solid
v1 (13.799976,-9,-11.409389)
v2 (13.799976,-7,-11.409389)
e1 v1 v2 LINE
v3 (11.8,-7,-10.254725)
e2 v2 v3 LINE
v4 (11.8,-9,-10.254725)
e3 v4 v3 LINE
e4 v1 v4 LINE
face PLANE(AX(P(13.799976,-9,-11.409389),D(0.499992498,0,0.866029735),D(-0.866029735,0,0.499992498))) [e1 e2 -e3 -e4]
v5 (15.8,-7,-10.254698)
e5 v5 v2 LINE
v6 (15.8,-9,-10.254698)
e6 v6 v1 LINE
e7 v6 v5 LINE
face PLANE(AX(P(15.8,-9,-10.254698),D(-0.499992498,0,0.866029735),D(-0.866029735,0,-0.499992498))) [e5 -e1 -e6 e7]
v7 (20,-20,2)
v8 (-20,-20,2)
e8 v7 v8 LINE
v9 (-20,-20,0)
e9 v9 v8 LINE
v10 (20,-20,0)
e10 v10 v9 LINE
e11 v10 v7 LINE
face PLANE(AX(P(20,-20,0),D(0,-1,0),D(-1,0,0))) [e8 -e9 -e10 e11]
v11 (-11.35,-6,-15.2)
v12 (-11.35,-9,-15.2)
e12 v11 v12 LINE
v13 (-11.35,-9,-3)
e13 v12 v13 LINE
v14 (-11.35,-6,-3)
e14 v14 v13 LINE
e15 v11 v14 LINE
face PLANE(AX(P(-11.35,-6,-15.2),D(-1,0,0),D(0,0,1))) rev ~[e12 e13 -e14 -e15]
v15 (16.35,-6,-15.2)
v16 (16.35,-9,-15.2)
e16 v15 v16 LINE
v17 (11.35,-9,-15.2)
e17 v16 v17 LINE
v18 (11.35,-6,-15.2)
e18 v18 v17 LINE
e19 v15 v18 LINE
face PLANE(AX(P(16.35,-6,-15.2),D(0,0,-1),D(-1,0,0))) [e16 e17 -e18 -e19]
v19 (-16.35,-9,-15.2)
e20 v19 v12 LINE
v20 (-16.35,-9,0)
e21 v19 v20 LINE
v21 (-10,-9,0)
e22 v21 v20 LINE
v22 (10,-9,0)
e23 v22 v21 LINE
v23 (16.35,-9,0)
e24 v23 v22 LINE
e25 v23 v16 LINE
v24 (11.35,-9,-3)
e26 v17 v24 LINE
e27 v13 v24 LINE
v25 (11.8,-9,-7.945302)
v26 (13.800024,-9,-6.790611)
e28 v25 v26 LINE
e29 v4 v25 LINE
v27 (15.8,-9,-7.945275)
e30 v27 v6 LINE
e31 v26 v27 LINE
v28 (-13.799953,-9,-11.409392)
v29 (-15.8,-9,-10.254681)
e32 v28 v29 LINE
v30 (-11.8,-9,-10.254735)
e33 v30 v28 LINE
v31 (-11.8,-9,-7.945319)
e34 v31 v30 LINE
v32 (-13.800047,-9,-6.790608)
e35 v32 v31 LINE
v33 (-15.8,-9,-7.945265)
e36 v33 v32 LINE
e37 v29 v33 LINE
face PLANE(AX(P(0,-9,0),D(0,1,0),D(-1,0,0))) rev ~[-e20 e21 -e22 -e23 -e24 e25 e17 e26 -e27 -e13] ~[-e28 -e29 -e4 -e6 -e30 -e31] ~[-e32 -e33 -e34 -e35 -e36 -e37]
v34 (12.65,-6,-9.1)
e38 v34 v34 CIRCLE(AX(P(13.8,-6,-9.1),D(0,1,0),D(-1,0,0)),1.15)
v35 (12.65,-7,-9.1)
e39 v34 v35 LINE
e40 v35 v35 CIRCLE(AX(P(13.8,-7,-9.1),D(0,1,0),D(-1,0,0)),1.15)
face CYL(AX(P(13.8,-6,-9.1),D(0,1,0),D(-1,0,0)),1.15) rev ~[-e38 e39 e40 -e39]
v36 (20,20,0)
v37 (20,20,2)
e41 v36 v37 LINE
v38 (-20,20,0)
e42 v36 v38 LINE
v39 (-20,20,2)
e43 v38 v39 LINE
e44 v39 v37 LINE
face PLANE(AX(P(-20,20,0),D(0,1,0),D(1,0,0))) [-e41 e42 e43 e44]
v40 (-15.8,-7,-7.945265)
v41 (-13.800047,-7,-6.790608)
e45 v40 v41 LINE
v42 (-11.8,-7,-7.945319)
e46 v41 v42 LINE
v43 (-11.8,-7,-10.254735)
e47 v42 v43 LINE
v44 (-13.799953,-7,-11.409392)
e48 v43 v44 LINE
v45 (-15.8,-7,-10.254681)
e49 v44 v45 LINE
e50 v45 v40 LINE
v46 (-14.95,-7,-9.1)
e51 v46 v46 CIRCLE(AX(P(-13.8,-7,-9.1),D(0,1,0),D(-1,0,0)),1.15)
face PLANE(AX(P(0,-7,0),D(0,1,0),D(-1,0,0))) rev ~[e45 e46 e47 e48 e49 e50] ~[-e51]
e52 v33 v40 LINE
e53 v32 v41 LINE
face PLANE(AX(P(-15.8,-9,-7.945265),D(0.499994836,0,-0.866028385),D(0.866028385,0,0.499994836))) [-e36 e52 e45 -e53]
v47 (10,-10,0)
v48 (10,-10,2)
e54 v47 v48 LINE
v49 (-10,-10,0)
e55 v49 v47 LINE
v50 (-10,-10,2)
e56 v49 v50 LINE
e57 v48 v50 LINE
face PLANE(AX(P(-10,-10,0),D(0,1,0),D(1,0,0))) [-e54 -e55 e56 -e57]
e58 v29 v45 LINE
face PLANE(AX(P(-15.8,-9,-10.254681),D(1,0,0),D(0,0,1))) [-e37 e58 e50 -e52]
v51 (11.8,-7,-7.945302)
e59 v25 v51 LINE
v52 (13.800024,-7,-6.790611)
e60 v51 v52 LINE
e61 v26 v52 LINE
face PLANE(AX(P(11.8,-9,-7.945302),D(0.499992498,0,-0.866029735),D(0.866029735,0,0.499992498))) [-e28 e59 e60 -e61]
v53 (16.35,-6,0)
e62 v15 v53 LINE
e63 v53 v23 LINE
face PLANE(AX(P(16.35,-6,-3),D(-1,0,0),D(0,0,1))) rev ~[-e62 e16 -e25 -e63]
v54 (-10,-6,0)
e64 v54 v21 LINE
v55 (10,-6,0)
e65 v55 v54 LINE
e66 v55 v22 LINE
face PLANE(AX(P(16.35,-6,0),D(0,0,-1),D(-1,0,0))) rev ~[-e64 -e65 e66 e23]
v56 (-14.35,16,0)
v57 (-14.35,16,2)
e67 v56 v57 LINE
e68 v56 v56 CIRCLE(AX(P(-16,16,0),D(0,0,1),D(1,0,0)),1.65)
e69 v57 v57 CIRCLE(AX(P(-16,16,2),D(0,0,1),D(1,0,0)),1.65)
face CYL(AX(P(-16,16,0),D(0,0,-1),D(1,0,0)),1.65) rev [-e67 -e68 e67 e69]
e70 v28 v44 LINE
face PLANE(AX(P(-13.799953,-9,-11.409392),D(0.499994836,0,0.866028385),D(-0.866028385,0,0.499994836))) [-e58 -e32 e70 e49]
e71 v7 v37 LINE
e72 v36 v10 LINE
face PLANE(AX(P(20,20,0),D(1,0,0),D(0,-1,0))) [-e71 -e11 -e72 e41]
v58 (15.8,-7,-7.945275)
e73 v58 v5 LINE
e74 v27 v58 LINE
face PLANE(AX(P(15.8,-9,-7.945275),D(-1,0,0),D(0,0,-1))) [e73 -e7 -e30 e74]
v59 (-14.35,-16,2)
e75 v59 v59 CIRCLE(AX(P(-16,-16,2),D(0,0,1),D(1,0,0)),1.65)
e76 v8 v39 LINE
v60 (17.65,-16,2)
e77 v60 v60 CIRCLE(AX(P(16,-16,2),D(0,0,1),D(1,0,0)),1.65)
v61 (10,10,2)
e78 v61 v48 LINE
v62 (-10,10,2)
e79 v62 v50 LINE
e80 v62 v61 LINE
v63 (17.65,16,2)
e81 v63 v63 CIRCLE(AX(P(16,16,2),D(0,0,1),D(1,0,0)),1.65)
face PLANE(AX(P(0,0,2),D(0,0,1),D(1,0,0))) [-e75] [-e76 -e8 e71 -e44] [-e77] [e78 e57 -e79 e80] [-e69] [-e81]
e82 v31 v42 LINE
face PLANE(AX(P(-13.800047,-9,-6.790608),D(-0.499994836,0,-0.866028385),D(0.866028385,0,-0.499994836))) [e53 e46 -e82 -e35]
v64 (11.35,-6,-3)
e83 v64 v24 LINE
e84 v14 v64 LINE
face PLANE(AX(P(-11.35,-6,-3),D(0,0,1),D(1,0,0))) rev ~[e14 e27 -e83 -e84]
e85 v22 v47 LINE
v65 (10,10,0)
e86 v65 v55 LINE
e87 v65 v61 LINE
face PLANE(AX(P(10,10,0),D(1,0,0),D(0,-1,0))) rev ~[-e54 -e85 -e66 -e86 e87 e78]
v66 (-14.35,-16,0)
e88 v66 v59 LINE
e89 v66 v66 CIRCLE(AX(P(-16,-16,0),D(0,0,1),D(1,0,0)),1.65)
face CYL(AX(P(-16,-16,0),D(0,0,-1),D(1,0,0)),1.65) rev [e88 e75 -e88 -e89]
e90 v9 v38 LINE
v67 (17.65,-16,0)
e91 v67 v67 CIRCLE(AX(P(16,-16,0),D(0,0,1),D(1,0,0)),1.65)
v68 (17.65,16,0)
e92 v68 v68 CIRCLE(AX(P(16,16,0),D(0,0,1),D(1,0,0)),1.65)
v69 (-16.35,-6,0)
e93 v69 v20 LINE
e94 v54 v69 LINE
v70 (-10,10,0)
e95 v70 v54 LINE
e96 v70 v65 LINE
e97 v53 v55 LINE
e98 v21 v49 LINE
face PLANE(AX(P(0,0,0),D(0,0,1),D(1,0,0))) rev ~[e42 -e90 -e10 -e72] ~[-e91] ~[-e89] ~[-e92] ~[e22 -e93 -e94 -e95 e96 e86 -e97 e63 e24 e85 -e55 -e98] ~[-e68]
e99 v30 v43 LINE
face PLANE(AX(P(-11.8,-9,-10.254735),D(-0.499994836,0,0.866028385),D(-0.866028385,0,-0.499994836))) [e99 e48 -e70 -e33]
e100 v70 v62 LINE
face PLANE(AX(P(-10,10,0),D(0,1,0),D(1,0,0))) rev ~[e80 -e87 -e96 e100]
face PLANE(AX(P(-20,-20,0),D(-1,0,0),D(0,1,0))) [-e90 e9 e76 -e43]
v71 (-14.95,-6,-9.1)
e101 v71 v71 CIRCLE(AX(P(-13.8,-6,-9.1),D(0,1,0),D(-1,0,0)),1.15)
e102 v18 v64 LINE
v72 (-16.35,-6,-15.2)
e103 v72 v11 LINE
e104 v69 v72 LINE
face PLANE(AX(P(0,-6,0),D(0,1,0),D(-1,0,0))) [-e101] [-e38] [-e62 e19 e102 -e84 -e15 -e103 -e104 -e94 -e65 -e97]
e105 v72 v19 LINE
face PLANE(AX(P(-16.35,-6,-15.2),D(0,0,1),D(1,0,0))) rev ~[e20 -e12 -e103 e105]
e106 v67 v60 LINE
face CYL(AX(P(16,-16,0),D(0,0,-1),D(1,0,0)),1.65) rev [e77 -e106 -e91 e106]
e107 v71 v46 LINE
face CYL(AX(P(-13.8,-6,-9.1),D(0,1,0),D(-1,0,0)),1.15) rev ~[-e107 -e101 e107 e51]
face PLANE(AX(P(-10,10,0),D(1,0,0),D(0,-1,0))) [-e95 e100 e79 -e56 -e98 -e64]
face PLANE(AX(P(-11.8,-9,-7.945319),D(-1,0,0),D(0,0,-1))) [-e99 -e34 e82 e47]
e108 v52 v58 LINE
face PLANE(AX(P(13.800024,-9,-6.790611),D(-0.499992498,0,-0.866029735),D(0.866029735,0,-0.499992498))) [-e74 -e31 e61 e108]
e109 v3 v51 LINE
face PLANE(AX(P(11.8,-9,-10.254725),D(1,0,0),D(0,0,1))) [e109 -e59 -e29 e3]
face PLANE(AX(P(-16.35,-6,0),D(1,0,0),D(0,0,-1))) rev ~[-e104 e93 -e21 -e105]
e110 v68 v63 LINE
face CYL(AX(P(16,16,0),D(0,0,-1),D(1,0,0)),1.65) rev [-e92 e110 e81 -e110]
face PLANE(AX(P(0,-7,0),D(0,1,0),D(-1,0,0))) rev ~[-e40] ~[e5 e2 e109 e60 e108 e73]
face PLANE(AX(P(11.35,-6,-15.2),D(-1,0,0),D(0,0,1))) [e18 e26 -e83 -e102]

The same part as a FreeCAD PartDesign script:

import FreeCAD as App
import Part
import Sketcher
from FreeCAD import Vector
Q = App.Units.Quantity


def add_polygon(sketch, points):
    """Adds a closed chain of lines whose ends are joined by coincident constraints."""
    first, n = sketch.GeometryCount, len(points)
    for a, b in zip(points, points[1:] + points[:1]):
        sketch.addGeometry(Part.LineSegment(App.Vector(*a, 0), App.Vector(*b, 0)), False)
    for i in range(n):
        sketch.addConstraint(Sketcher.Constraint("Coincident", first + i, 2, first + (i + 1) % n, 1))

doc = App.newDocument("Part")
body = doc.addObject("PartDesign::Body", "Body")

sketch1 = body.newObject("Sketcher::SketchObject", "Sketch")
sketch1.AttachmentSupport = (doc.getObject("XY_Plane"), [""])
sketch1.MapMode = "FlatFace"
add_polygon(sketch1, [(-20, 20), (-20, -20), (20, -20), (20, 20)])
add_polygon(sketch1, [(-10, -10), (-10, 10), (10, 10), (10, -10)])
sketch1.addGeometry(Part.Circle(Vector(-16, -16, 0), Vector(0, 0, 1), 1.65), False)
sketch1.addGeometry(Part.Circle(Vector(16, -16, 0), Vector(0, 0, 1), 1.65), False)
sketch1.addGeometry(Part.Circle(Vector(-16, 16, 0), Vector(0, 0, 1), 1.65), False)
sketch1.addGeometry(Part.Circle(Vector(16, 16, 0), Vector(0, 0, 1), 1.65), False)
sketch1.addConstraint([
    Sketcher.Constraint("Vertical", 0),
    Sketcher.Constraint("Horizontal", 1),
    Sketcher.Constraint("Vertical", 2),
    Sketcher.Constraint("Horizontal", 3),
    Sketcher.Constraint("Vertical", 4),
    Sketcher.Constraint("Horizontal", 5),
    Sketcher.Constraint("Vertical", 6),
    Sketcher.Constraint("Horizontal", 7),
    Sketcher.Constraint("Equal", 8, 9),
    Sketcher.Constraint("Equal", 9, 10),
    Sketcher.Constraint("Equal", 10, 11),
    Sketcher.Constraint("Symmetric", 9, 3, 10, 3, -1, 1),
    Sketcher.Constraint("Symmetric", 8, 3, 11, 3, -1, 1),
    Sketcher.Constraint("Symmetric", 0, 2, 2, 2, -1, 1),
    Sketcher.Constraint("Symmetric", 4, 2, 6, 2, -1, 1),
    Sketcher.Constraint("Symmetric", 8, 3, 9, 3, -2),
    Sketcher.Constraint("Equal", 3, 0),
    Sketcher.Constraint("Equal", 7, 4),
    Sketcher.Constraint("Diameter", 8, Q("3.3 mm")),
    Sketcher.Constraint("DistanceX", 1, 1, 1, 2, Q("40 mm")),
    Sketcher.Constraint("DistanceX", 8, 3, -1, 1, Q("16 mm")),
    Sketcher.Constraint("DistanceY", 8, 3, -1, 1, Q("16 mm")),
    Sketcher.Constraint("DistanceX", 4, 2, -1, 1, Q("10 mm")),
])
pad1 = body.newObject("PartDesign::Pad", "Pad")
pad1.Profile = sketch1
pad1.Length = 2

sketch2 = body.newObject("Sketcher::SketchObject", "Sketch001")
sketch2.AttachmentSupport = (doc.getObject("XZ_Plane"), [""])
sketch2.MapMode = "FlatFace"
sketch2.AttachmentOffset = App.Placement(Vector(0, 0, 6), App.Rotation())
add_polygon(sketch2, [(-16.35, 0), (16.35, 0), (16.35, -15.2), (11.35, -15.2), (11.35, -3), (-11.35, -3), (-11.35, -15.2), (-16.35, -15.2)])
sketch2.addGeometry(Part.Circle(Vector(-13.8, -9.1, 0), Vector(0, 0, 1), 1.15), False)
sketch2.addGeometry(Part.Circle(Vector(13.8, -9.1, 0), Vector(0, 0, 1), 1.15), False)
sketch2.addConstraint([
    Sketcher.Constraint("Horizontal", 0),
    Sketcher.Constraint("Vertical", 1),
    Sketcher.Constraint("Horizontal", 2),
    Sketcher.Constraint("Vertical", 3),
    Sketcher.Constraint("Horizontal", 4),
    Sketcher.Constraint("Vertical", 5),
    Sketcher.Constraint("Horizontal", 6),
    Sketcher.Constraint("Vertical", 7),
    Sketcher.Constraint("Equal", 8, 9),
    Sketcher.Constraint("Symmetric", 0, 2, 7, 2, -1, 1),
    Sketcher.Constraint("Symmetric", 8, 3, 9, 3, -2),
    Sketcher.Constraint("Symmetric", 2, 2, 5, 2, -2),
    Sketcher.Constraint("Diameter", 8, Q("2.3 mm")),
    Sketcher.Constraint("DistanceX", 2, 2, 2, 1, Q("5 mm")),
    Sketcher.Constraint("DistanceX", 4, 2, 4, 1, Q("22.7 mm")),
    Sketcher.Constraint("DistanceY", 3, 1, 3, 2, Q("12.2 mm")),
    Sketcher.Constraint("DistanceY", 3, 2, -1, 1, Q("3 mm")),
    Sketcher.Constraint("DistanceX", 8, 3, -1, 1, Q("13.8 mm")),
    Sketcher.Constraint("DistanceY", 8, 3, -1, 1, Q("9.1 mm")),
])
pad2 = body.newObject("PartDesign::Pad", "Pad001")
pad2.Profile = sketch2
pad2.Length = 3

sketch3 = body.newObject("Sketcher::SketchObject", "Sketch002")
sketch3.AttachmentSupport = (doc.getObject("XZ_Plane"), [""])
sketch3.MapMode = "FlatFace"
sketch3.AttachmentOffset = App.Placement(Vector(0, 0, 9), App.Rotation())
add_polygon(sketch3, [(13.800024, -6.790611), (15.8, -7.945275), (15.8, -10.254698), (13.799976, -11.409389), (11.8, -10.254725), (11.8, -7.945302)])
sketch3.addGeometry(Part.Circle(Vector(13.8, -9.1, 0), Vector(0, 0, 1), 1.15), False)
add_polygon(sketch3, [(-13.799953, -11.409392), (-15.8, -10.254681), (-15.8, -7.945265), (-13.800047, -6.790608), (-11.8, -7.945319), (-11.8, -10.254735)])
sketch3.addGeometry(Part.Circle(Vector(-13.8, -9.1, 0), Vector(0, 0, 1), 1.15), False)
sketch3.addConstraint([
    Sketcher.Constraint("Vertical", 1),
    Sketcher.Constraint("Vertical", 4),
    Sketcher.Constraint("Vertical", 8),
    Sketcher.Constraint("Vertical", 11),
    Sketcher.Constraint("Equal", 6, 13),
    Sketcher.Constraint("Symmetric", 6, 3, 13, 3, -2),
    Sketcher.Constraint("Symmetric", 1, 2, 7, 2, -2),
    Sketcher.Constraint("Symmetric", 5, 2, 9, 2, -2),
    Sketcher.Constraint("Symmetric", 4, 2, 10, 2, -2),
    Sketcher.Constraint("Symmetric", 2, 2, 12, 2, -2),
    Sketcher.Constraint("Parallel", 0, 3),
    Sketcher.Constraint("Parallel", 2, 5),
    Sketcher.Constraint("Parallel", 3, 7),
    Sketcher.Constraint("Parallel", 5, 9),
    Sketcher.Constraint("Parallel", 9, 12),
    Sketcher.Constraint("Horizontal", 1, 2, 3, 2),
    Sketcher.Constraint("Horizontal", 0, 2, 4, 2),
    Sketcher.Constraint("Vertical", 6, 3, 2, 2),
    Sketcher.Constraint("DistanceX", 6, 3, 0, 2, Q("2 mm")),
    Sketcher.Constraint("Diameter", 6, Q("2.3 mm")),
    Sketcher.Constraint("Angle", 0, Q("-29.9995 deg")),
    Sketcher.Constraint("DistanceX", -1, 1, 6, 3, Q("13.8 mm")),
    Sketcher.Constraint("DistanceY", 6, 3, -1, 1, Q("9.1 mm")),
    Sketcher.Constraint("DistanceY", 1, 2, 1, 1, Q("2.3094 mm")),
    Sketcher.Constraint("DistanceY", 0, 2, -1, 1, Q("7.9453 mm")),
])
pocket1 = body.newObject("PartDesign::Pocket", "Pocket")
pocket1.Profile = sketch3
pocket1.Length = 2

doc.recompute()
